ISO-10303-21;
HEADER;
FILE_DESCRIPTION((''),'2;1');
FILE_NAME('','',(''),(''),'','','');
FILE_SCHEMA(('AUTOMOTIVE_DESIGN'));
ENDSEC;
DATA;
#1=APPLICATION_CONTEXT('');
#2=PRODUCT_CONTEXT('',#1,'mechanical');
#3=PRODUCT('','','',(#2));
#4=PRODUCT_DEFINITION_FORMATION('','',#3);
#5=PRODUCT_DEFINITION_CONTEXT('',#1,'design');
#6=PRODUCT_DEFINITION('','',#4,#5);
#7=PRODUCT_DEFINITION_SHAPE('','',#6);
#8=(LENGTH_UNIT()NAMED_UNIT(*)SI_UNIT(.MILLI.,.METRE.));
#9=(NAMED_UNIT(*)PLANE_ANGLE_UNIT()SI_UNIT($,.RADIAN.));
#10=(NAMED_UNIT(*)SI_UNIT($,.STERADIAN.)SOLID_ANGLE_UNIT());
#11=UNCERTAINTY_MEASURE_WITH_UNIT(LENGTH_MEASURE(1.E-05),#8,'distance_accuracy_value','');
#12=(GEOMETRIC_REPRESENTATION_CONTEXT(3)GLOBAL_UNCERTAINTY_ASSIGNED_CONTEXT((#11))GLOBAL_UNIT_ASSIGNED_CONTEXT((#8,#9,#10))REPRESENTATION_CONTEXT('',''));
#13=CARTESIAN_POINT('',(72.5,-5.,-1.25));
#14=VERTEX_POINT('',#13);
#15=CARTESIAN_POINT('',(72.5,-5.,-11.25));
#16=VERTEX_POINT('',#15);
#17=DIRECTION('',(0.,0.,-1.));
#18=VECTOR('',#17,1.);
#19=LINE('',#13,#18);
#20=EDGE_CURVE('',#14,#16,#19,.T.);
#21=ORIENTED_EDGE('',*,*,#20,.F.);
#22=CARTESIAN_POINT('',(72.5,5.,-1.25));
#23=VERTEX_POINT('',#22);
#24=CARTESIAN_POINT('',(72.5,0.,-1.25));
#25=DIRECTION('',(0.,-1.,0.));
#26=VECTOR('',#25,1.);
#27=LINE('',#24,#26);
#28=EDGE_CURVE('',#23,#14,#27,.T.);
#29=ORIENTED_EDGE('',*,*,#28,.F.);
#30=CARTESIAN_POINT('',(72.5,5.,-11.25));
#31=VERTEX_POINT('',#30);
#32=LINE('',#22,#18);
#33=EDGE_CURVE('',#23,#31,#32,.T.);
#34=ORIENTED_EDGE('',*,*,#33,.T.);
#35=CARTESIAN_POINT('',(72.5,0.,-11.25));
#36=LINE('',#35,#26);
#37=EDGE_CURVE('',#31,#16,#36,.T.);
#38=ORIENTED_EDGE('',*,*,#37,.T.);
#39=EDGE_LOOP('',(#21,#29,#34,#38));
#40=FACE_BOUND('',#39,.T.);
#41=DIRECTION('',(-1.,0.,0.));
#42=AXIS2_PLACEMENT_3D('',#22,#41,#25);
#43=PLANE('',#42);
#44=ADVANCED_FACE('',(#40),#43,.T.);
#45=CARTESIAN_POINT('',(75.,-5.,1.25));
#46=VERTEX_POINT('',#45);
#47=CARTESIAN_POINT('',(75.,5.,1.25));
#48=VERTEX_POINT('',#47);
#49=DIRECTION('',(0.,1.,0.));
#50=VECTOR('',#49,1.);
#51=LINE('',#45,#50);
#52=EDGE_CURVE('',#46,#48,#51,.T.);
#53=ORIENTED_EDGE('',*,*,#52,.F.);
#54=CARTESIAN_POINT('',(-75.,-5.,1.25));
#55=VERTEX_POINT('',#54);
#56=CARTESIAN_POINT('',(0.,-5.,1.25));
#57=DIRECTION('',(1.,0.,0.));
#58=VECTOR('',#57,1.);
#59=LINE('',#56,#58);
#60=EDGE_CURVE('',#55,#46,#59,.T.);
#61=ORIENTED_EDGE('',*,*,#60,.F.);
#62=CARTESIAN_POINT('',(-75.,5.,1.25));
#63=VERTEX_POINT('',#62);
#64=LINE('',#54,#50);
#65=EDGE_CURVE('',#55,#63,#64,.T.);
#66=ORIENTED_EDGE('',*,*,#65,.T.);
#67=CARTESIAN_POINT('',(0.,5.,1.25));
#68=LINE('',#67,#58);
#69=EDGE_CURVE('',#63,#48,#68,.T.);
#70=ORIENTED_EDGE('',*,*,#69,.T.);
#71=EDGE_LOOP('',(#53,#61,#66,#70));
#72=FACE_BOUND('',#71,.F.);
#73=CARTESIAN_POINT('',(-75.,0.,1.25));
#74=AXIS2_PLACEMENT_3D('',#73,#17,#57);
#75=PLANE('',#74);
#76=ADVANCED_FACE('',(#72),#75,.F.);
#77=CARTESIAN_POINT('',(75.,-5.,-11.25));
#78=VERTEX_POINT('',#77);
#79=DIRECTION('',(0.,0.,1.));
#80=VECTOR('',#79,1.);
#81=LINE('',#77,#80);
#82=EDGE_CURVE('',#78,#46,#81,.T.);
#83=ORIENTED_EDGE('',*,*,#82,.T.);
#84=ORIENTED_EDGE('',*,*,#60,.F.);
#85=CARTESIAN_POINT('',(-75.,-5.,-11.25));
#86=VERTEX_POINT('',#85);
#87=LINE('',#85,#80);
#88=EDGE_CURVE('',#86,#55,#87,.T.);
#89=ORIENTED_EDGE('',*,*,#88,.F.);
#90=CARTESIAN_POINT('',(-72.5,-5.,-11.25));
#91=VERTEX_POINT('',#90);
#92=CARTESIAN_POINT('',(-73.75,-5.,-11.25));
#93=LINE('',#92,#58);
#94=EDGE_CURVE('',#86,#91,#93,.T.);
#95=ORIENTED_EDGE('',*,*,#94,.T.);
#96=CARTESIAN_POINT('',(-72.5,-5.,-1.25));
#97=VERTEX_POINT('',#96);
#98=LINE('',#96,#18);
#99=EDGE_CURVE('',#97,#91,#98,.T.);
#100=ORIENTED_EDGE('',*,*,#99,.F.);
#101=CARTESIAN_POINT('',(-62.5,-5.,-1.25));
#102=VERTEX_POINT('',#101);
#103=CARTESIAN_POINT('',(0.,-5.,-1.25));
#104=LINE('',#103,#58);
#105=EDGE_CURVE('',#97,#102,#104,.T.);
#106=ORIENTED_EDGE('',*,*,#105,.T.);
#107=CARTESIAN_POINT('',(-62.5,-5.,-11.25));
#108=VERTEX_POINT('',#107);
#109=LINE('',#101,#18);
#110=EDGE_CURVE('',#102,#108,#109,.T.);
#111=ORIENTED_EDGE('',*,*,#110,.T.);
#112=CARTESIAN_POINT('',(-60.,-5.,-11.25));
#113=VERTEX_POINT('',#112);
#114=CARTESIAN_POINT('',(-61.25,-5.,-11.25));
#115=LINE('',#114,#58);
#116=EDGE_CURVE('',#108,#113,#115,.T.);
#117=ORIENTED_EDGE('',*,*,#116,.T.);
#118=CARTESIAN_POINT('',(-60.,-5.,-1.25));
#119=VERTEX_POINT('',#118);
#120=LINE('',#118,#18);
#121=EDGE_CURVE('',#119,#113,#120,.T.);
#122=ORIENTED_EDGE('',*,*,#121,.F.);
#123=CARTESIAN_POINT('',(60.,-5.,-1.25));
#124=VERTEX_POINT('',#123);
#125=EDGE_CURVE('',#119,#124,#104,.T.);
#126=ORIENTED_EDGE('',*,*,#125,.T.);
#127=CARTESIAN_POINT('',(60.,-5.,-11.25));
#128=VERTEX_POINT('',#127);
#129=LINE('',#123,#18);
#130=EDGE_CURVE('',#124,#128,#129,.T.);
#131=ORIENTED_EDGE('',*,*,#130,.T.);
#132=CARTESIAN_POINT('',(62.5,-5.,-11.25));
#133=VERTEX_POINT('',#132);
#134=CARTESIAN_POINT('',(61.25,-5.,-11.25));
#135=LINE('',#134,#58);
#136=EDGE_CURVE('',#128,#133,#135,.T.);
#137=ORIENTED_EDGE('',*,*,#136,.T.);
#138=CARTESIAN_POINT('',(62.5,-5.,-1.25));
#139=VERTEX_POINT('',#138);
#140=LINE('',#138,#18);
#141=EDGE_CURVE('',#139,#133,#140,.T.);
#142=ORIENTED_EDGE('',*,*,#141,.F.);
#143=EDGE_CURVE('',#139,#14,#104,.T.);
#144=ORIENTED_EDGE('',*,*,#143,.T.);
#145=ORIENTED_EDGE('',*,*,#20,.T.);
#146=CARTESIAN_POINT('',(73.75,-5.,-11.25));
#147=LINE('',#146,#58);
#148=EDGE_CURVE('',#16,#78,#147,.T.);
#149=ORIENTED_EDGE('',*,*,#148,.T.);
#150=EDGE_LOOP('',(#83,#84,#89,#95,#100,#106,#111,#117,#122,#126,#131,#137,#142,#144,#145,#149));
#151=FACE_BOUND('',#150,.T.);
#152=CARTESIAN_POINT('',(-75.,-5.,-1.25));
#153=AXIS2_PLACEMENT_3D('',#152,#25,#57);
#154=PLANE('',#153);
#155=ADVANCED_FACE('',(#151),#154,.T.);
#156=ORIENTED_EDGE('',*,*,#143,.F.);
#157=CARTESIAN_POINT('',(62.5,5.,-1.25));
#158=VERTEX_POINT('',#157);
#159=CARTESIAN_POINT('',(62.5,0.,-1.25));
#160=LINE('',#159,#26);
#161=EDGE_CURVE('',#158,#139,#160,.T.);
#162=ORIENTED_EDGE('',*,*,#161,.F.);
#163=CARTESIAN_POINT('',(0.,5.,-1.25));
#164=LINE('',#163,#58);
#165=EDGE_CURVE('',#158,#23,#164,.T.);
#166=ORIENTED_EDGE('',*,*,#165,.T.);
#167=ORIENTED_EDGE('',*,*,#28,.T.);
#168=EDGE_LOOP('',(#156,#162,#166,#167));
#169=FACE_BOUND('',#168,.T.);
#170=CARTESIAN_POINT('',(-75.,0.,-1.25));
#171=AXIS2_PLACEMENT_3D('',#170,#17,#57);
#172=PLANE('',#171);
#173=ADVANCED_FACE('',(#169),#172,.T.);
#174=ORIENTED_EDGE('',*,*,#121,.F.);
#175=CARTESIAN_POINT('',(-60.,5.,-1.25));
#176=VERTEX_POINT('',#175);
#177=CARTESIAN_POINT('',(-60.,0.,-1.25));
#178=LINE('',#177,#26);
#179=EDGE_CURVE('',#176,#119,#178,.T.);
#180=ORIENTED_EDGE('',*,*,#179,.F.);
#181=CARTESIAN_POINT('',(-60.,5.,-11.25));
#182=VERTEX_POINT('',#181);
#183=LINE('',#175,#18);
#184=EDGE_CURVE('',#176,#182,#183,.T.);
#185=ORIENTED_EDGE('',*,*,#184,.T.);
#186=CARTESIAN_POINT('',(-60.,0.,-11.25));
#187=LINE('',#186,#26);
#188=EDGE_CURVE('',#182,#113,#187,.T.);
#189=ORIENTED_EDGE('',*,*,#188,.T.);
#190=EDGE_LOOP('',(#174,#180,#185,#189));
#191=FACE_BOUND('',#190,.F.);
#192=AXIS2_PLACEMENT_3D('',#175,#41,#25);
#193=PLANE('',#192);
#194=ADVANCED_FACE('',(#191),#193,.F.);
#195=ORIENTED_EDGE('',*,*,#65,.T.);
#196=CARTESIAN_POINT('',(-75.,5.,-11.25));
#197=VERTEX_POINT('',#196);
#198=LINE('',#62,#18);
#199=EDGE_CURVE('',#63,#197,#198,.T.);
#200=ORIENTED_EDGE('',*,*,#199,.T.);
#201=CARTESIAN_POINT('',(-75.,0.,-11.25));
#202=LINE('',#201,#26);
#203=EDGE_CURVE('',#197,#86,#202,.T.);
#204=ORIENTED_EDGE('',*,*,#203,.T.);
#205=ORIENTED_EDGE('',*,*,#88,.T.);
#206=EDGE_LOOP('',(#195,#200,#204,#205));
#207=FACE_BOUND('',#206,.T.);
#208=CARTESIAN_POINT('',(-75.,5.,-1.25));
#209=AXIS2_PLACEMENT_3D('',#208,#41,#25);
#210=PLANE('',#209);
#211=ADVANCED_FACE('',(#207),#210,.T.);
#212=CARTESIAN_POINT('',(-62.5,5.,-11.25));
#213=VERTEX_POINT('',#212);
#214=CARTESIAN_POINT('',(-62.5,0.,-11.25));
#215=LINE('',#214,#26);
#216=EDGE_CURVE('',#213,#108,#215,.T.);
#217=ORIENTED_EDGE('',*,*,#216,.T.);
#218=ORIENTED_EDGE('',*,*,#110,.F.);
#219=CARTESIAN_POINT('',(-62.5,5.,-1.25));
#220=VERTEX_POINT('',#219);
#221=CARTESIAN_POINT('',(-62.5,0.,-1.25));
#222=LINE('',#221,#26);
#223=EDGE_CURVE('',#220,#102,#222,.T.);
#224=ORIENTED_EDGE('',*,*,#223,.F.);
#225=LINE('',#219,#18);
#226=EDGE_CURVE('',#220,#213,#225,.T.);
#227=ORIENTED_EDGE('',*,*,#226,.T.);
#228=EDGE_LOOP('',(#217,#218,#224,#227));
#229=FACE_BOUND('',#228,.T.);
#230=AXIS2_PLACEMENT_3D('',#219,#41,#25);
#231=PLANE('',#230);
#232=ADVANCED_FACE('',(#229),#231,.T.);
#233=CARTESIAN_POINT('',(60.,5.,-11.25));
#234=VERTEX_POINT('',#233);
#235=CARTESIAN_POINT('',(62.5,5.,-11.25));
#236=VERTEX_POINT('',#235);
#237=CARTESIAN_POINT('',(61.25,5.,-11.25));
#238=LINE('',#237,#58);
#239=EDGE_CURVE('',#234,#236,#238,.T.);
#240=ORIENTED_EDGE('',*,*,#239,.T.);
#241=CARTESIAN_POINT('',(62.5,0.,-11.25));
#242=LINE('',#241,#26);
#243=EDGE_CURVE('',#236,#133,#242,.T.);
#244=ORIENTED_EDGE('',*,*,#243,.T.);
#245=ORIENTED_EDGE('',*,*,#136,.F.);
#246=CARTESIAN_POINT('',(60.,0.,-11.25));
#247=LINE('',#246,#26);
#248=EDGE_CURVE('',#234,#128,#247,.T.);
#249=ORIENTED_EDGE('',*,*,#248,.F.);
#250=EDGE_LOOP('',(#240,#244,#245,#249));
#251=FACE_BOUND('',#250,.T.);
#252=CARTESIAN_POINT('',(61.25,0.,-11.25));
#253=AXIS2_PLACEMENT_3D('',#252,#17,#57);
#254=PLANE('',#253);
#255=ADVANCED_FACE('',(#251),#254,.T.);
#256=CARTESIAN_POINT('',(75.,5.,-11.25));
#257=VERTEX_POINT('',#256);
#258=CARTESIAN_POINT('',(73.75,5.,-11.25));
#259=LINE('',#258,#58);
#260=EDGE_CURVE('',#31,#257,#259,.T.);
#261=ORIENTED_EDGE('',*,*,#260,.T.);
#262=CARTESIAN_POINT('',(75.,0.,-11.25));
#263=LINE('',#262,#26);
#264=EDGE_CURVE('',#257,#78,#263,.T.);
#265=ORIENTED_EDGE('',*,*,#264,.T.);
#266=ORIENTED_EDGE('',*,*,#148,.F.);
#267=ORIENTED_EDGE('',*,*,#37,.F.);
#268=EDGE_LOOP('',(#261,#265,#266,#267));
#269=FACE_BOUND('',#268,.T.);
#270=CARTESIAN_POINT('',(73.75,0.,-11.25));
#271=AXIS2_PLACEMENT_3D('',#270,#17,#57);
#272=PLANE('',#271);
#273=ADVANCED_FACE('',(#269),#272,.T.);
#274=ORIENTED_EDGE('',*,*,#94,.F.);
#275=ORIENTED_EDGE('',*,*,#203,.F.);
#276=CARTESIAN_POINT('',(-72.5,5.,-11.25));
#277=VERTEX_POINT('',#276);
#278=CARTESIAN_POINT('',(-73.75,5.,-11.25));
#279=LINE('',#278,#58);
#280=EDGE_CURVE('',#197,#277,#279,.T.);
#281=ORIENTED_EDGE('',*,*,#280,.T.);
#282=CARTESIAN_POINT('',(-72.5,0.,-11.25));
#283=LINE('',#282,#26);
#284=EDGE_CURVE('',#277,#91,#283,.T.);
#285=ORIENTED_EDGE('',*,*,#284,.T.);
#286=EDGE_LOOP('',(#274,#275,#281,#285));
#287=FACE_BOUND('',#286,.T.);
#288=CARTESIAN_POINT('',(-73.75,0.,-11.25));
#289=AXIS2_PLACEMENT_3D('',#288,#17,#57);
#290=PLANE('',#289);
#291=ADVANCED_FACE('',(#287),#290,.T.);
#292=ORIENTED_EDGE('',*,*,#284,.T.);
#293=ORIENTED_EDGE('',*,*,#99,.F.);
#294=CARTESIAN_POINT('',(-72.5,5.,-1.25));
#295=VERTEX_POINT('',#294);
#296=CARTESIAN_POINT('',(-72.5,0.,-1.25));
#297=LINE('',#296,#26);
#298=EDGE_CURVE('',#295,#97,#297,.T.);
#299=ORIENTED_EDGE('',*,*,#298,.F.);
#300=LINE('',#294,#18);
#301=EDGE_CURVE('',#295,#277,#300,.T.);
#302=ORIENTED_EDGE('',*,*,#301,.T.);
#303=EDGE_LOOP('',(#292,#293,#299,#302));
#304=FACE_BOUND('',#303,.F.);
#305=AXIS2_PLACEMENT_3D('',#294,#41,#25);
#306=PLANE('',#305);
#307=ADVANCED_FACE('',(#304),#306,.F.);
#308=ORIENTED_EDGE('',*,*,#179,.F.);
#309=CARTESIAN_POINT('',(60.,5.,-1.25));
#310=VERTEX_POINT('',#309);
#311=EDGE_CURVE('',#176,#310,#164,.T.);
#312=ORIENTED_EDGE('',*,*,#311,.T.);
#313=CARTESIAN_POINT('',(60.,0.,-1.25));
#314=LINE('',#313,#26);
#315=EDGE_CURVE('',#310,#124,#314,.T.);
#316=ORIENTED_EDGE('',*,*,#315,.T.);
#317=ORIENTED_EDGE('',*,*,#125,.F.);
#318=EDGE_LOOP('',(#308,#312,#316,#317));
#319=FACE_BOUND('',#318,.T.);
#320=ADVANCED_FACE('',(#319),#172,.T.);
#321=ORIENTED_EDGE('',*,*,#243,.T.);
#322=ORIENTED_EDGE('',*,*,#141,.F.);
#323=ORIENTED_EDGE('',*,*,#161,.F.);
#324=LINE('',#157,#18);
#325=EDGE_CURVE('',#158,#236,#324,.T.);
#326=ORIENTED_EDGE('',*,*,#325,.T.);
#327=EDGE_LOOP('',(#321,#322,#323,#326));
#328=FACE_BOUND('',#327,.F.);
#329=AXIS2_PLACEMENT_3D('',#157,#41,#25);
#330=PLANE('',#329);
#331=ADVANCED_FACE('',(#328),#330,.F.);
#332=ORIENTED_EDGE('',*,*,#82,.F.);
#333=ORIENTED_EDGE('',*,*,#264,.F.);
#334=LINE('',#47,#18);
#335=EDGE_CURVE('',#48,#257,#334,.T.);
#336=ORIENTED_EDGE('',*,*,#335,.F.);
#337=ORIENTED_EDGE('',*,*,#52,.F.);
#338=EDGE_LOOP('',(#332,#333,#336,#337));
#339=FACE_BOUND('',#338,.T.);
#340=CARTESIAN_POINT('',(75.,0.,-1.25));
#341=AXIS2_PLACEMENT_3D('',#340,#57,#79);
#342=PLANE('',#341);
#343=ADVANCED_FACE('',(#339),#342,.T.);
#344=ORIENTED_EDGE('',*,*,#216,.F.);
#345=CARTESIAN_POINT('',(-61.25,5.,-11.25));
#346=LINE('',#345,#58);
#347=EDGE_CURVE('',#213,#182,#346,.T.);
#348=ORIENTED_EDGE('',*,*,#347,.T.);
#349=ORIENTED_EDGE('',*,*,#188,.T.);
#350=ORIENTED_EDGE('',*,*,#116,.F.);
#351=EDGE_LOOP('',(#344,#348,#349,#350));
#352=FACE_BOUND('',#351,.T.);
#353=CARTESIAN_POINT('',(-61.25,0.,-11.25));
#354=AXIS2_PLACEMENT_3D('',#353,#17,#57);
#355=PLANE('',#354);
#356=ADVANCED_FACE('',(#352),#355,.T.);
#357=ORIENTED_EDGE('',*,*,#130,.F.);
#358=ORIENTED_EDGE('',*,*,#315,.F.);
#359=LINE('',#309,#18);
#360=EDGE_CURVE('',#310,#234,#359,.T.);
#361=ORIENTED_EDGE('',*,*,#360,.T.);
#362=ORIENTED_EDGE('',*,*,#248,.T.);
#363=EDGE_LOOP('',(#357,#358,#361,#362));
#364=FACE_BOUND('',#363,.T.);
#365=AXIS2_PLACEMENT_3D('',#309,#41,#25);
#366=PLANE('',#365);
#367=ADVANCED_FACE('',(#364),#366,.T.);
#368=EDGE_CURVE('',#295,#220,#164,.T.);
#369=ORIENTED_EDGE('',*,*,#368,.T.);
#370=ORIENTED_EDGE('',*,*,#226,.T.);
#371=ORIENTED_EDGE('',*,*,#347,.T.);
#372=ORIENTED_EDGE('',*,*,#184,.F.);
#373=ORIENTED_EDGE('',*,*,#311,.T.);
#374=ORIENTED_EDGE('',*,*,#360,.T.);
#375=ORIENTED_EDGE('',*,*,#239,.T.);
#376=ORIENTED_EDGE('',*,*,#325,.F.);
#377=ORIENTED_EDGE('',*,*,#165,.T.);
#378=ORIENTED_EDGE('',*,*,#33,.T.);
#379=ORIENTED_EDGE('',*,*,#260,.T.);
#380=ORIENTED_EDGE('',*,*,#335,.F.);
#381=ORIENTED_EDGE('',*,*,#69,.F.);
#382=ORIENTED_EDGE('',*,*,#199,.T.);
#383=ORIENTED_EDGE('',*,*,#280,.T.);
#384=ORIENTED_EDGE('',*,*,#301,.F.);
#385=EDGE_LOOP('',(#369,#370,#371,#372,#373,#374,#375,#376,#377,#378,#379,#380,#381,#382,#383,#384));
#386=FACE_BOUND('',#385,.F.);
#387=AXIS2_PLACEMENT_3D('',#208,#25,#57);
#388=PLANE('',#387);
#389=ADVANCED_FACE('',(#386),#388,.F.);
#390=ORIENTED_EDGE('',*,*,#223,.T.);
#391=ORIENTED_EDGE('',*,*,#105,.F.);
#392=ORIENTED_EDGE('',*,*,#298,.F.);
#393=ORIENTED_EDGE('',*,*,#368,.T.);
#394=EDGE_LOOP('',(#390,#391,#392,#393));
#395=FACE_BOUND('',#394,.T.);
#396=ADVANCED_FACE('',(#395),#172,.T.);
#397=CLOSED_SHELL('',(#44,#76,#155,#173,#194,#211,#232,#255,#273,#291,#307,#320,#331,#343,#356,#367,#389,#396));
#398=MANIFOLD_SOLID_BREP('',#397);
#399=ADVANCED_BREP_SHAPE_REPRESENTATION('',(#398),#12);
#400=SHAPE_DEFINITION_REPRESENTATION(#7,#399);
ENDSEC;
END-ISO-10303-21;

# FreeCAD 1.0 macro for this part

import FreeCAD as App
import Part
import Sketcher
Q = App.Units.Quantity


def add_polygon(sketch, points):
    """Adds a closed chain of lines whose ends are joined by coincident constraints."""
    first, n = sketch.GeometryCount, len(points)
    for a, b in zip(points, points[1:] + points[:1]):
        sketch.addGeometry(Part.LineSegment(App.Vector(*a, 0), App.Vector(*b, 0)), False)
    for i in range(n):
        sketch.addConstraint(Sketcher.Constraint("Coincident", first + i, 2, first + (i + 1) % n, 1))

doc = App.newDocument("Part")
params = doc.addObject("Spreadsheet::Sheet", "Params")
for row, (alias, value) in enumerate([
    ("sketch1_width", "150 mm"),
    ("sketch1_height", "2.5 mm"),
    ("pad1_length", "10 mm"),
    ("sketch2_height", "10 mm"),
    ("sketch2_width", "2.5 mm"),
    ("pad2_length", "10 mm"),
], start=1):
    params.set(f"A{row}", alias)
    params.set(f"B{row}", "=" + value)
    params.setAlias(f"B{row}", alias)

body = doc.addObject("PartDesign::Body", "Body")

sketch1 = body.newObject("Sketcher::SketchObject", "Sketch")
sketch1.AttachmentSupport = (doc.getObject("XZ_Plane"), [""])
sketch1.MapMode = "FlatFace"
add_polygon(sketch1, [(-75, 1.2), (-75, -1.2), (75, -1.2), (75, 1.2)])
sketch1.addConstraint([
    Sketcher.Constraint("Vertical", 0),
    Sketcher.Constraint("Horizontal", 1),
    Sketcher.Constraint("Vertical", 2),
    Sketcher.Constraint("Horizontal", 3),
    Sketcher.Constraint("Symmetric", 0, 2, 2, 2, -1, 1),
    Sketcher.Constraint("DistanceX", 1, 1, 1, 2, Q("150 mm")),
    Sketcher.Constraint("DistanceY", 0, 2, 0, 1, Q("2.5 mm")),
])
sketch1.setExpression("Constraints[9]", "Params.sketch1_width")
sketch1.setExpression("Constraints[10]", "Params.sketch1_height")
pad1 = body.newObject("PartDesign::Pad", "Pad")
pad1.Profile = sketch1
pad1.setExpression("Length", "Params.pad1_length")
pad1.Midplane = True

sketch2 = body.newObject("Sketcher::SketchObject", "Sketch001")
sketch2.AttachmentSupport = (doc.getObject("XY_Plane"), [""])
sketch2.MapMode = "FlatFace"
sketch2.AttachmentOffset = App.Placement(App.Vector(0, 0, -1.25), App.Rotation())
add_polygon(sketch2, [(-62.5, -5), (-62.5, 5), (-60, 5), (-60, -5)])
add_polygon(sketch2, [(-75, -5), (-75, 5), (-72.5, 5), (-72.5, -5)])
add_polygon(sketch2, [(60, -5), (60, 5), (62.5, 5), (62.5, -5)])
add_polygon(sketch2, [(72.5, -5), (72.5, 5), (75, 5), (75, -5)])
sketch2.addConstraint([
    Sketcher.Constraint("Vertical", 0),
    Sketcher.Constraint("Horizontal", 1),
    Sketcher.Constraint("Vertical", 2),
    Sketcher.Constraint("Horizontal", 3),
    Sketcher.Constraint("Vertical", 4),
    Sketcher.Constraint("Horizontal", 5),
    Sketcher.Constraint("Vertical", 6),
    Sketcher.Constraint("Horizontal", 7),
    Sketcher.Constraint("Vertical", 8),
    Sketcher.Constraint("Horizontal", 9),
    Sketcher.Constraint("Vertical", 10),
    Sketcher.Constraint("Horizontal", 11),
    Sketcher.Constraint("Vertical", 12),
    Sketcher.Constraint("Horizontal", 13),
    Sketcher.Constraint("Vertical", 14),
    Sketcher.Constraint("Horizontal", 15),
    Sketcher.Constraint("Symmetric", 2, 2, 8, 2, -1, 1),
    Sketcher.Constraint("Symmetric", 0, 2, 10, 2, -1, 1),
    Sketcher.Constraint("Symmetric", 6, 2, 12, 2, -1, 1),
    Sketcher.Constraint("Symmetric", 4, 2, 14, 2, -1, 1),
    Sketcher.Constraint("Horizontal", 1, 2, 4, 2),
    Sketcher.Constraint("Horizontal", 3, 2, 6, 2),
    Sketcher.Constraint("Horizontal", 5, 2, 8, 2),
    Sketcher.Constraint("Equal", 3, 5),
    Sketcher.Constraint("DistanceY", 0, 1, 0, 2, Q("10 mm")),
    Sketcher.Constraint("DistanceX", 1, 1, 1, 2, Q("2.5 mm")),
    Sketcher.Constraint("DistanceX", 1, 2, -1, 1, Q("60 mm")),
    Sketcher.Constraint("DistanceX", 4, 2, -1, 1, Q("75 mm")),
])
sketch2.setExpression("Constraints[40]", "Params.sketch2_height")
sketch2.setExpression("Constraints[41]", "Params.sketch2_width")
pad2 = body.newObject("PartDesign::Pad", "Pad001")
pad2.Profile = sketch2
pad2.setExpression("Length", "Params.pad2_length")
pad2.Reversed = True

doc.recompute()
